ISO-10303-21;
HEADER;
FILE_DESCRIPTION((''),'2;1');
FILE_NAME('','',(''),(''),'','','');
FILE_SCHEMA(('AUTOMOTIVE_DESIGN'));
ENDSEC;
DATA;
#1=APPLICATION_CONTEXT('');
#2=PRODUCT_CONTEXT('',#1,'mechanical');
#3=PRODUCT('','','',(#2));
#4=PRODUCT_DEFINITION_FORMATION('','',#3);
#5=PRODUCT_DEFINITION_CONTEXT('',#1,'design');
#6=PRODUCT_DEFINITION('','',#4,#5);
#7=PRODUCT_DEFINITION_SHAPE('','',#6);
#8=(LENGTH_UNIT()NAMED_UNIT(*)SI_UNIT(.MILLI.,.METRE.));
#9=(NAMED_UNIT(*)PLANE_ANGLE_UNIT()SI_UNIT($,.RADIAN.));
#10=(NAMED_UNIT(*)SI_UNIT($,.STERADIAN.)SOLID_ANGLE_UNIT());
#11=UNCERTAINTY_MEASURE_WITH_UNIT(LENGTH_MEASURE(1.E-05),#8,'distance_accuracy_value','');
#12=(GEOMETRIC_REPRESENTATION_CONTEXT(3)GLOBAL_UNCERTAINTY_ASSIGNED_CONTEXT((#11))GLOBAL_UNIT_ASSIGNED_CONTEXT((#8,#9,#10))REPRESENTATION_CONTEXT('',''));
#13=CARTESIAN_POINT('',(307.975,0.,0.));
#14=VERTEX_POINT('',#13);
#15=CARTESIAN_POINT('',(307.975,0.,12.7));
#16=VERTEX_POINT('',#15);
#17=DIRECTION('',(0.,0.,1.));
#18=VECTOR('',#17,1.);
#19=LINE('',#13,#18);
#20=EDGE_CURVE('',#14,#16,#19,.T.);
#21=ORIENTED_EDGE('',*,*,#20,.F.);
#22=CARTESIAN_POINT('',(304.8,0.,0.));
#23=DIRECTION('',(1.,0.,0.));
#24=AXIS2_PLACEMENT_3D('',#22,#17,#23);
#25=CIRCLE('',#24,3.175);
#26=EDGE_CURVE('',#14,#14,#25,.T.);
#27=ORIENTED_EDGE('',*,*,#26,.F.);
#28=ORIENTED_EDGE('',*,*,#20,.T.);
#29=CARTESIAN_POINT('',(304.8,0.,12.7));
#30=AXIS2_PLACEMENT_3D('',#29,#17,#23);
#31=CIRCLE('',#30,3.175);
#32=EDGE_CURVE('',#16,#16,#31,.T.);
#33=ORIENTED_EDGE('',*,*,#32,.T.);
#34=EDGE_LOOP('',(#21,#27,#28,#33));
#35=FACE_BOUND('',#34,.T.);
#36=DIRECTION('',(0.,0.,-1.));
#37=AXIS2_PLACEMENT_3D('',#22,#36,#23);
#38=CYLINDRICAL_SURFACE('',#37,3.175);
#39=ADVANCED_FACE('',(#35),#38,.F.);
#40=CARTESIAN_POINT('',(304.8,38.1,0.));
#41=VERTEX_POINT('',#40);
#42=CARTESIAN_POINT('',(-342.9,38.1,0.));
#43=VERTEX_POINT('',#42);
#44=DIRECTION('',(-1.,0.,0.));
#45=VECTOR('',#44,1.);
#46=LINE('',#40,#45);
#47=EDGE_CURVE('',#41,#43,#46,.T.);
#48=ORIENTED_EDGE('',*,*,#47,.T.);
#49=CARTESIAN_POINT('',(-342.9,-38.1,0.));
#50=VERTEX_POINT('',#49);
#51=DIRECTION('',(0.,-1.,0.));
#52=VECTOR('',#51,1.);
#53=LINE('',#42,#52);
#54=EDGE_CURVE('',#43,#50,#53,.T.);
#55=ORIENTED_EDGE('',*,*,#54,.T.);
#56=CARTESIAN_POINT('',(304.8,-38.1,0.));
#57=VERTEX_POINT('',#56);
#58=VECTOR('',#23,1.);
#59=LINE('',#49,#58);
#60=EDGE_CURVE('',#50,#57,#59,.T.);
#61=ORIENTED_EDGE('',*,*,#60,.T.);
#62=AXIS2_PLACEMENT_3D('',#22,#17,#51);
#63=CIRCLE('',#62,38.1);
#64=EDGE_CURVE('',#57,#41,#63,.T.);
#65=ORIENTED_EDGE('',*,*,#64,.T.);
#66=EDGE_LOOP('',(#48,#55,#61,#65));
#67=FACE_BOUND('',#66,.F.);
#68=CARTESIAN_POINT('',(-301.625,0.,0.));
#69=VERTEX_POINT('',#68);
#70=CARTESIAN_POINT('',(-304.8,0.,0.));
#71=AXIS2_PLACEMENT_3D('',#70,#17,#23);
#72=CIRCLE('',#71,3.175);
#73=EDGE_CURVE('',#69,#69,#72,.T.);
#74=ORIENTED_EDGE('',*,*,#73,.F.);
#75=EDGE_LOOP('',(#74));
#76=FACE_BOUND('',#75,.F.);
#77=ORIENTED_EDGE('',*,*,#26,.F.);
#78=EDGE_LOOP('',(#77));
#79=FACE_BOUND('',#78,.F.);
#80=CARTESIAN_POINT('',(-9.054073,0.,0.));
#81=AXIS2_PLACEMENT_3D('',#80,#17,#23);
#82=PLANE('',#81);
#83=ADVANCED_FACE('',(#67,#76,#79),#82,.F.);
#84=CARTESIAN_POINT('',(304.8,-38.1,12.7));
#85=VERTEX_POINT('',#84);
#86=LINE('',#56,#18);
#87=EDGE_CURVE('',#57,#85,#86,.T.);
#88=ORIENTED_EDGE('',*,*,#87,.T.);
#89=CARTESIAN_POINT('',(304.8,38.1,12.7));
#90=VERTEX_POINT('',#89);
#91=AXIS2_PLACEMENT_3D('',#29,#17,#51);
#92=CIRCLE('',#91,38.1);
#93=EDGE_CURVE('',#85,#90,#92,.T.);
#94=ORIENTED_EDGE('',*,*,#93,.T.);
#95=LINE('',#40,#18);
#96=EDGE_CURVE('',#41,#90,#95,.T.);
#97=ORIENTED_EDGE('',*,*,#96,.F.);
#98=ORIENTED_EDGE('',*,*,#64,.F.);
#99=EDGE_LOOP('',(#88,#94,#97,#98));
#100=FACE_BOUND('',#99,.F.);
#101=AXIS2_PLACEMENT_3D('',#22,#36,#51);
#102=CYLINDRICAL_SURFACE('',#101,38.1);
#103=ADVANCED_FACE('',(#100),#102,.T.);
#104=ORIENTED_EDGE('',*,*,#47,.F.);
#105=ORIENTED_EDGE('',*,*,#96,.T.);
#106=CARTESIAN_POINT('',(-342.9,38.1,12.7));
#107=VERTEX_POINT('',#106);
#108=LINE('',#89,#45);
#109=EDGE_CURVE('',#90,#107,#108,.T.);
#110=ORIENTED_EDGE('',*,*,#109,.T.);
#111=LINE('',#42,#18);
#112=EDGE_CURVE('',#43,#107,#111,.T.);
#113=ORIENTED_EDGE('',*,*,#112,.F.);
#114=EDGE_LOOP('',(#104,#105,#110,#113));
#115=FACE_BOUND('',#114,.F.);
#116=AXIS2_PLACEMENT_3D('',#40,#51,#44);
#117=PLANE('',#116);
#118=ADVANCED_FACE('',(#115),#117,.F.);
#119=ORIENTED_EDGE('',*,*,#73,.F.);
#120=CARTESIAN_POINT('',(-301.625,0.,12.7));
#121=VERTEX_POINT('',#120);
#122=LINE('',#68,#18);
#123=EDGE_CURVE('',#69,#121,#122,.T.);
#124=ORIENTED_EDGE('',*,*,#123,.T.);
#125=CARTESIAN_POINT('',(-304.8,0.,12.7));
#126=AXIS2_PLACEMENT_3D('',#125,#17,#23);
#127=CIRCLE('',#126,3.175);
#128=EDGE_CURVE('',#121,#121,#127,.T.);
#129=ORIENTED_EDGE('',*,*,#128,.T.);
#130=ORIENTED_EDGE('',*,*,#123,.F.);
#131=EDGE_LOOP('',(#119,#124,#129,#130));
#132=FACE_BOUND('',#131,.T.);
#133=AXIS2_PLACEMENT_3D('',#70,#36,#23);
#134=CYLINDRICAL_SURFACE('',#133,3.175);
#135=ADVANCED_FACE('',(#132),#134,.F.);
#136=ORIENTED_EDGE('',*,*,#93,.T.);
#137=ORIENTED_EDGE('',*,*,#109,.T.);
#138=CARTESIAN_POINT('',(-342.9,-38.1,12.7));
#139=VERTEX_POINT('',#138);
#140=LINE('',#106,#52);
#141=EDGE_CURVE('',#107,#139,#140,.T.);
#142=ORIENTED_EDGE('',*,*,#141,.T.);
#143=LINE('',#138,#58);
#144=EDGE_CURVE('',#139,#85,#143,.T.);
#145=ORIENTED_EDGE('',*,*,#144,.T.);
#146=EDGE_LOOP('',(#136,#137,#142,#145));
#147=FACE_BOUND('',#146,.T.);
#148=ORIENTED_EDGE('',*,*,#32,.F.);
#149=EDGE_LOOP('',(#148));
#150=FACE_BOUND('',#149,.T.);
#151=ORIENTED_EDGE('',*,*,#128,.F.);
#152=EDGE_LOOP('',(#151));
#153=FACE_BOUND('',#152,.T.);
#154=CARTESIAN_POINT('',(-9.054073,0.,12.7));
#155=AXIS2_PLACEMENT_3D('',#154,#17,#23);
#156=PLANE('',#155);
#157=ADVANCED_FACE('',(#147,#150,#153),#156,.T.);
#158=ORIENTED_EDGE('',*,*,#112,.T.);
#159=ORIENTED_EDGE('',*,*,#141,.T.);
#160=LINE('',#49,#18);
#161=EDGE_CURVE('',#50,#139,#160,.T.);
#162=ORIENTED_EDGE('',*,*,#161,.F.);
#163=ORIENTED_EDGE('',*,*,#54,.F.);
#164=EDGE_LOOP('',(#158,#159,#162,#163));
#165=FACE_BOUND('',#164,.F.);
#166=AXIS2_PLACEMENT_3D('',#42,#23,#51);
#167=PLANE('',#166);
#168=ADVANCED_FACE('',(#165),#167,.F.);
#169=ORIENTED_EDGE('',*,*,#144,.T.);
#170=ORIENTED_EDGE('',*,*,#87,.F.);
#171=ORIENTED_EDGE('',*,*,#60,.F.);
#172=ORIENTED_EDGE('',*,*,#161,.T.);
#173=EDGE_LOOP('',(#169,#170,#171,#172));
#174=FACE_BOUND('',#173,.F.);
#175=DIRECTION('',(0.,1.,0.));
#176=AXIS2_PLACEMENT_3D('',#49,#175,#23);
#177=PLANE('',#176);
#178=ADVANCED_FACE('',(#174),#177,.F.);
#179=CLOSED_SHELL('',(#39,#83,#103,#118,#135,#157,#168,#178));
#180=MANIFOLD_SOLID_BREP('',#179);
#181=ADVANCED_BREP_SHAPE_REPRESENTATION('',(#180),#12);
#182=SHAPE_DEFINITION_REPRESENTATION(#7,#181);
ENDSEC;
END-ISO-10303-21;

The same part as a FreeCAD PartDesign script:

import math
import FreeCAD as App
import Part
import Sketcher
from FreeCAD import Vector
Q = App.Units.Quantity

doc = App.newDocument("Part")
body = doc.addObject("PartDesign::Body", "Body")

# Sketch on XY plane
sketch1 = body.newObject("Sketcher::SketchObject", "Sketch")
sketch1.AttachmentSupport = (doc.getObject("XY_Plane"), [""])
sketch1.MapMode = "FlatFace"
sketch1.addGeometry([
    Part.LineSegment(Vector(-342.9, 38.1, 0), Vector(-342.9, -38.1, 0)),  # 0
    Part.LineSegment(Vector(-342.9, -38.1, 0), Vector(304.8, -38.1, 0)),  # 1
    Part.ArcOfCircle(Part.Circle(Vector(304.8, 0, 0), Vector(0, 0, 1), 38.1), math.radians(-90), math.radians(90)),  # 2
    Part.LineSegment(Vector(304.8, 38.1, 0), Vector(-342.9, 38.1, 0)),  # 3
    Part.Circle(Vector(-304.8, 0, 0), Vector(0, 0, 1), 3.2),  # 4
    Part.Circle(Vector(304.8, 0, 0), Vector(0, 0, 1), 3.2),  # 5
], False)
sketch1.addConstraint([
    Sketcher.Constraint("Coincident", 0, 2, 1, 1),
    Sketcher.Constraint("Tangent", 1, 2, 2, 1),
    Sketcher.Constraint("Tangent", 2, 2, 3, 1),
    Sketcher.Constraint("Coincident", 3, 2, 0, 1),
    Sketcher.Constraint("Vertical", 0),
    Sketcher.Constraint("Horizontal", 1),
    Sketcher.Constraint("Horizontal", 3),
    Sketcher.Constraint("Coincident", 5, 3, 2, 3),
    Sketcher.Constraint("Equal", 4, 5),
    Sketcher.Constraint("Symmetric", 2, 3, 4, 3, -1, 1),
    Sketcher.Constraint("PointOnObject", 2, 3, -1),
    Sketcher.Constraint("Radius", 2, Q("1.5 in")),
    Sketcher.Constraint("Diameter", 4, Q("0.25 in")),
    Sketcher.Constraint("DistanceX", 1, 1, 1, 2, Q("25.5 in")),
    Sketcher.Constraint("DistanceX", -1, 1, 2, 3, Q("12 in")),
])
pad1 = body.newObject("PartDesign::Pad", "Pad")
pad1.Profile = sketch1
pad1.Length = Q("0.5 in")

doc.recompute()
